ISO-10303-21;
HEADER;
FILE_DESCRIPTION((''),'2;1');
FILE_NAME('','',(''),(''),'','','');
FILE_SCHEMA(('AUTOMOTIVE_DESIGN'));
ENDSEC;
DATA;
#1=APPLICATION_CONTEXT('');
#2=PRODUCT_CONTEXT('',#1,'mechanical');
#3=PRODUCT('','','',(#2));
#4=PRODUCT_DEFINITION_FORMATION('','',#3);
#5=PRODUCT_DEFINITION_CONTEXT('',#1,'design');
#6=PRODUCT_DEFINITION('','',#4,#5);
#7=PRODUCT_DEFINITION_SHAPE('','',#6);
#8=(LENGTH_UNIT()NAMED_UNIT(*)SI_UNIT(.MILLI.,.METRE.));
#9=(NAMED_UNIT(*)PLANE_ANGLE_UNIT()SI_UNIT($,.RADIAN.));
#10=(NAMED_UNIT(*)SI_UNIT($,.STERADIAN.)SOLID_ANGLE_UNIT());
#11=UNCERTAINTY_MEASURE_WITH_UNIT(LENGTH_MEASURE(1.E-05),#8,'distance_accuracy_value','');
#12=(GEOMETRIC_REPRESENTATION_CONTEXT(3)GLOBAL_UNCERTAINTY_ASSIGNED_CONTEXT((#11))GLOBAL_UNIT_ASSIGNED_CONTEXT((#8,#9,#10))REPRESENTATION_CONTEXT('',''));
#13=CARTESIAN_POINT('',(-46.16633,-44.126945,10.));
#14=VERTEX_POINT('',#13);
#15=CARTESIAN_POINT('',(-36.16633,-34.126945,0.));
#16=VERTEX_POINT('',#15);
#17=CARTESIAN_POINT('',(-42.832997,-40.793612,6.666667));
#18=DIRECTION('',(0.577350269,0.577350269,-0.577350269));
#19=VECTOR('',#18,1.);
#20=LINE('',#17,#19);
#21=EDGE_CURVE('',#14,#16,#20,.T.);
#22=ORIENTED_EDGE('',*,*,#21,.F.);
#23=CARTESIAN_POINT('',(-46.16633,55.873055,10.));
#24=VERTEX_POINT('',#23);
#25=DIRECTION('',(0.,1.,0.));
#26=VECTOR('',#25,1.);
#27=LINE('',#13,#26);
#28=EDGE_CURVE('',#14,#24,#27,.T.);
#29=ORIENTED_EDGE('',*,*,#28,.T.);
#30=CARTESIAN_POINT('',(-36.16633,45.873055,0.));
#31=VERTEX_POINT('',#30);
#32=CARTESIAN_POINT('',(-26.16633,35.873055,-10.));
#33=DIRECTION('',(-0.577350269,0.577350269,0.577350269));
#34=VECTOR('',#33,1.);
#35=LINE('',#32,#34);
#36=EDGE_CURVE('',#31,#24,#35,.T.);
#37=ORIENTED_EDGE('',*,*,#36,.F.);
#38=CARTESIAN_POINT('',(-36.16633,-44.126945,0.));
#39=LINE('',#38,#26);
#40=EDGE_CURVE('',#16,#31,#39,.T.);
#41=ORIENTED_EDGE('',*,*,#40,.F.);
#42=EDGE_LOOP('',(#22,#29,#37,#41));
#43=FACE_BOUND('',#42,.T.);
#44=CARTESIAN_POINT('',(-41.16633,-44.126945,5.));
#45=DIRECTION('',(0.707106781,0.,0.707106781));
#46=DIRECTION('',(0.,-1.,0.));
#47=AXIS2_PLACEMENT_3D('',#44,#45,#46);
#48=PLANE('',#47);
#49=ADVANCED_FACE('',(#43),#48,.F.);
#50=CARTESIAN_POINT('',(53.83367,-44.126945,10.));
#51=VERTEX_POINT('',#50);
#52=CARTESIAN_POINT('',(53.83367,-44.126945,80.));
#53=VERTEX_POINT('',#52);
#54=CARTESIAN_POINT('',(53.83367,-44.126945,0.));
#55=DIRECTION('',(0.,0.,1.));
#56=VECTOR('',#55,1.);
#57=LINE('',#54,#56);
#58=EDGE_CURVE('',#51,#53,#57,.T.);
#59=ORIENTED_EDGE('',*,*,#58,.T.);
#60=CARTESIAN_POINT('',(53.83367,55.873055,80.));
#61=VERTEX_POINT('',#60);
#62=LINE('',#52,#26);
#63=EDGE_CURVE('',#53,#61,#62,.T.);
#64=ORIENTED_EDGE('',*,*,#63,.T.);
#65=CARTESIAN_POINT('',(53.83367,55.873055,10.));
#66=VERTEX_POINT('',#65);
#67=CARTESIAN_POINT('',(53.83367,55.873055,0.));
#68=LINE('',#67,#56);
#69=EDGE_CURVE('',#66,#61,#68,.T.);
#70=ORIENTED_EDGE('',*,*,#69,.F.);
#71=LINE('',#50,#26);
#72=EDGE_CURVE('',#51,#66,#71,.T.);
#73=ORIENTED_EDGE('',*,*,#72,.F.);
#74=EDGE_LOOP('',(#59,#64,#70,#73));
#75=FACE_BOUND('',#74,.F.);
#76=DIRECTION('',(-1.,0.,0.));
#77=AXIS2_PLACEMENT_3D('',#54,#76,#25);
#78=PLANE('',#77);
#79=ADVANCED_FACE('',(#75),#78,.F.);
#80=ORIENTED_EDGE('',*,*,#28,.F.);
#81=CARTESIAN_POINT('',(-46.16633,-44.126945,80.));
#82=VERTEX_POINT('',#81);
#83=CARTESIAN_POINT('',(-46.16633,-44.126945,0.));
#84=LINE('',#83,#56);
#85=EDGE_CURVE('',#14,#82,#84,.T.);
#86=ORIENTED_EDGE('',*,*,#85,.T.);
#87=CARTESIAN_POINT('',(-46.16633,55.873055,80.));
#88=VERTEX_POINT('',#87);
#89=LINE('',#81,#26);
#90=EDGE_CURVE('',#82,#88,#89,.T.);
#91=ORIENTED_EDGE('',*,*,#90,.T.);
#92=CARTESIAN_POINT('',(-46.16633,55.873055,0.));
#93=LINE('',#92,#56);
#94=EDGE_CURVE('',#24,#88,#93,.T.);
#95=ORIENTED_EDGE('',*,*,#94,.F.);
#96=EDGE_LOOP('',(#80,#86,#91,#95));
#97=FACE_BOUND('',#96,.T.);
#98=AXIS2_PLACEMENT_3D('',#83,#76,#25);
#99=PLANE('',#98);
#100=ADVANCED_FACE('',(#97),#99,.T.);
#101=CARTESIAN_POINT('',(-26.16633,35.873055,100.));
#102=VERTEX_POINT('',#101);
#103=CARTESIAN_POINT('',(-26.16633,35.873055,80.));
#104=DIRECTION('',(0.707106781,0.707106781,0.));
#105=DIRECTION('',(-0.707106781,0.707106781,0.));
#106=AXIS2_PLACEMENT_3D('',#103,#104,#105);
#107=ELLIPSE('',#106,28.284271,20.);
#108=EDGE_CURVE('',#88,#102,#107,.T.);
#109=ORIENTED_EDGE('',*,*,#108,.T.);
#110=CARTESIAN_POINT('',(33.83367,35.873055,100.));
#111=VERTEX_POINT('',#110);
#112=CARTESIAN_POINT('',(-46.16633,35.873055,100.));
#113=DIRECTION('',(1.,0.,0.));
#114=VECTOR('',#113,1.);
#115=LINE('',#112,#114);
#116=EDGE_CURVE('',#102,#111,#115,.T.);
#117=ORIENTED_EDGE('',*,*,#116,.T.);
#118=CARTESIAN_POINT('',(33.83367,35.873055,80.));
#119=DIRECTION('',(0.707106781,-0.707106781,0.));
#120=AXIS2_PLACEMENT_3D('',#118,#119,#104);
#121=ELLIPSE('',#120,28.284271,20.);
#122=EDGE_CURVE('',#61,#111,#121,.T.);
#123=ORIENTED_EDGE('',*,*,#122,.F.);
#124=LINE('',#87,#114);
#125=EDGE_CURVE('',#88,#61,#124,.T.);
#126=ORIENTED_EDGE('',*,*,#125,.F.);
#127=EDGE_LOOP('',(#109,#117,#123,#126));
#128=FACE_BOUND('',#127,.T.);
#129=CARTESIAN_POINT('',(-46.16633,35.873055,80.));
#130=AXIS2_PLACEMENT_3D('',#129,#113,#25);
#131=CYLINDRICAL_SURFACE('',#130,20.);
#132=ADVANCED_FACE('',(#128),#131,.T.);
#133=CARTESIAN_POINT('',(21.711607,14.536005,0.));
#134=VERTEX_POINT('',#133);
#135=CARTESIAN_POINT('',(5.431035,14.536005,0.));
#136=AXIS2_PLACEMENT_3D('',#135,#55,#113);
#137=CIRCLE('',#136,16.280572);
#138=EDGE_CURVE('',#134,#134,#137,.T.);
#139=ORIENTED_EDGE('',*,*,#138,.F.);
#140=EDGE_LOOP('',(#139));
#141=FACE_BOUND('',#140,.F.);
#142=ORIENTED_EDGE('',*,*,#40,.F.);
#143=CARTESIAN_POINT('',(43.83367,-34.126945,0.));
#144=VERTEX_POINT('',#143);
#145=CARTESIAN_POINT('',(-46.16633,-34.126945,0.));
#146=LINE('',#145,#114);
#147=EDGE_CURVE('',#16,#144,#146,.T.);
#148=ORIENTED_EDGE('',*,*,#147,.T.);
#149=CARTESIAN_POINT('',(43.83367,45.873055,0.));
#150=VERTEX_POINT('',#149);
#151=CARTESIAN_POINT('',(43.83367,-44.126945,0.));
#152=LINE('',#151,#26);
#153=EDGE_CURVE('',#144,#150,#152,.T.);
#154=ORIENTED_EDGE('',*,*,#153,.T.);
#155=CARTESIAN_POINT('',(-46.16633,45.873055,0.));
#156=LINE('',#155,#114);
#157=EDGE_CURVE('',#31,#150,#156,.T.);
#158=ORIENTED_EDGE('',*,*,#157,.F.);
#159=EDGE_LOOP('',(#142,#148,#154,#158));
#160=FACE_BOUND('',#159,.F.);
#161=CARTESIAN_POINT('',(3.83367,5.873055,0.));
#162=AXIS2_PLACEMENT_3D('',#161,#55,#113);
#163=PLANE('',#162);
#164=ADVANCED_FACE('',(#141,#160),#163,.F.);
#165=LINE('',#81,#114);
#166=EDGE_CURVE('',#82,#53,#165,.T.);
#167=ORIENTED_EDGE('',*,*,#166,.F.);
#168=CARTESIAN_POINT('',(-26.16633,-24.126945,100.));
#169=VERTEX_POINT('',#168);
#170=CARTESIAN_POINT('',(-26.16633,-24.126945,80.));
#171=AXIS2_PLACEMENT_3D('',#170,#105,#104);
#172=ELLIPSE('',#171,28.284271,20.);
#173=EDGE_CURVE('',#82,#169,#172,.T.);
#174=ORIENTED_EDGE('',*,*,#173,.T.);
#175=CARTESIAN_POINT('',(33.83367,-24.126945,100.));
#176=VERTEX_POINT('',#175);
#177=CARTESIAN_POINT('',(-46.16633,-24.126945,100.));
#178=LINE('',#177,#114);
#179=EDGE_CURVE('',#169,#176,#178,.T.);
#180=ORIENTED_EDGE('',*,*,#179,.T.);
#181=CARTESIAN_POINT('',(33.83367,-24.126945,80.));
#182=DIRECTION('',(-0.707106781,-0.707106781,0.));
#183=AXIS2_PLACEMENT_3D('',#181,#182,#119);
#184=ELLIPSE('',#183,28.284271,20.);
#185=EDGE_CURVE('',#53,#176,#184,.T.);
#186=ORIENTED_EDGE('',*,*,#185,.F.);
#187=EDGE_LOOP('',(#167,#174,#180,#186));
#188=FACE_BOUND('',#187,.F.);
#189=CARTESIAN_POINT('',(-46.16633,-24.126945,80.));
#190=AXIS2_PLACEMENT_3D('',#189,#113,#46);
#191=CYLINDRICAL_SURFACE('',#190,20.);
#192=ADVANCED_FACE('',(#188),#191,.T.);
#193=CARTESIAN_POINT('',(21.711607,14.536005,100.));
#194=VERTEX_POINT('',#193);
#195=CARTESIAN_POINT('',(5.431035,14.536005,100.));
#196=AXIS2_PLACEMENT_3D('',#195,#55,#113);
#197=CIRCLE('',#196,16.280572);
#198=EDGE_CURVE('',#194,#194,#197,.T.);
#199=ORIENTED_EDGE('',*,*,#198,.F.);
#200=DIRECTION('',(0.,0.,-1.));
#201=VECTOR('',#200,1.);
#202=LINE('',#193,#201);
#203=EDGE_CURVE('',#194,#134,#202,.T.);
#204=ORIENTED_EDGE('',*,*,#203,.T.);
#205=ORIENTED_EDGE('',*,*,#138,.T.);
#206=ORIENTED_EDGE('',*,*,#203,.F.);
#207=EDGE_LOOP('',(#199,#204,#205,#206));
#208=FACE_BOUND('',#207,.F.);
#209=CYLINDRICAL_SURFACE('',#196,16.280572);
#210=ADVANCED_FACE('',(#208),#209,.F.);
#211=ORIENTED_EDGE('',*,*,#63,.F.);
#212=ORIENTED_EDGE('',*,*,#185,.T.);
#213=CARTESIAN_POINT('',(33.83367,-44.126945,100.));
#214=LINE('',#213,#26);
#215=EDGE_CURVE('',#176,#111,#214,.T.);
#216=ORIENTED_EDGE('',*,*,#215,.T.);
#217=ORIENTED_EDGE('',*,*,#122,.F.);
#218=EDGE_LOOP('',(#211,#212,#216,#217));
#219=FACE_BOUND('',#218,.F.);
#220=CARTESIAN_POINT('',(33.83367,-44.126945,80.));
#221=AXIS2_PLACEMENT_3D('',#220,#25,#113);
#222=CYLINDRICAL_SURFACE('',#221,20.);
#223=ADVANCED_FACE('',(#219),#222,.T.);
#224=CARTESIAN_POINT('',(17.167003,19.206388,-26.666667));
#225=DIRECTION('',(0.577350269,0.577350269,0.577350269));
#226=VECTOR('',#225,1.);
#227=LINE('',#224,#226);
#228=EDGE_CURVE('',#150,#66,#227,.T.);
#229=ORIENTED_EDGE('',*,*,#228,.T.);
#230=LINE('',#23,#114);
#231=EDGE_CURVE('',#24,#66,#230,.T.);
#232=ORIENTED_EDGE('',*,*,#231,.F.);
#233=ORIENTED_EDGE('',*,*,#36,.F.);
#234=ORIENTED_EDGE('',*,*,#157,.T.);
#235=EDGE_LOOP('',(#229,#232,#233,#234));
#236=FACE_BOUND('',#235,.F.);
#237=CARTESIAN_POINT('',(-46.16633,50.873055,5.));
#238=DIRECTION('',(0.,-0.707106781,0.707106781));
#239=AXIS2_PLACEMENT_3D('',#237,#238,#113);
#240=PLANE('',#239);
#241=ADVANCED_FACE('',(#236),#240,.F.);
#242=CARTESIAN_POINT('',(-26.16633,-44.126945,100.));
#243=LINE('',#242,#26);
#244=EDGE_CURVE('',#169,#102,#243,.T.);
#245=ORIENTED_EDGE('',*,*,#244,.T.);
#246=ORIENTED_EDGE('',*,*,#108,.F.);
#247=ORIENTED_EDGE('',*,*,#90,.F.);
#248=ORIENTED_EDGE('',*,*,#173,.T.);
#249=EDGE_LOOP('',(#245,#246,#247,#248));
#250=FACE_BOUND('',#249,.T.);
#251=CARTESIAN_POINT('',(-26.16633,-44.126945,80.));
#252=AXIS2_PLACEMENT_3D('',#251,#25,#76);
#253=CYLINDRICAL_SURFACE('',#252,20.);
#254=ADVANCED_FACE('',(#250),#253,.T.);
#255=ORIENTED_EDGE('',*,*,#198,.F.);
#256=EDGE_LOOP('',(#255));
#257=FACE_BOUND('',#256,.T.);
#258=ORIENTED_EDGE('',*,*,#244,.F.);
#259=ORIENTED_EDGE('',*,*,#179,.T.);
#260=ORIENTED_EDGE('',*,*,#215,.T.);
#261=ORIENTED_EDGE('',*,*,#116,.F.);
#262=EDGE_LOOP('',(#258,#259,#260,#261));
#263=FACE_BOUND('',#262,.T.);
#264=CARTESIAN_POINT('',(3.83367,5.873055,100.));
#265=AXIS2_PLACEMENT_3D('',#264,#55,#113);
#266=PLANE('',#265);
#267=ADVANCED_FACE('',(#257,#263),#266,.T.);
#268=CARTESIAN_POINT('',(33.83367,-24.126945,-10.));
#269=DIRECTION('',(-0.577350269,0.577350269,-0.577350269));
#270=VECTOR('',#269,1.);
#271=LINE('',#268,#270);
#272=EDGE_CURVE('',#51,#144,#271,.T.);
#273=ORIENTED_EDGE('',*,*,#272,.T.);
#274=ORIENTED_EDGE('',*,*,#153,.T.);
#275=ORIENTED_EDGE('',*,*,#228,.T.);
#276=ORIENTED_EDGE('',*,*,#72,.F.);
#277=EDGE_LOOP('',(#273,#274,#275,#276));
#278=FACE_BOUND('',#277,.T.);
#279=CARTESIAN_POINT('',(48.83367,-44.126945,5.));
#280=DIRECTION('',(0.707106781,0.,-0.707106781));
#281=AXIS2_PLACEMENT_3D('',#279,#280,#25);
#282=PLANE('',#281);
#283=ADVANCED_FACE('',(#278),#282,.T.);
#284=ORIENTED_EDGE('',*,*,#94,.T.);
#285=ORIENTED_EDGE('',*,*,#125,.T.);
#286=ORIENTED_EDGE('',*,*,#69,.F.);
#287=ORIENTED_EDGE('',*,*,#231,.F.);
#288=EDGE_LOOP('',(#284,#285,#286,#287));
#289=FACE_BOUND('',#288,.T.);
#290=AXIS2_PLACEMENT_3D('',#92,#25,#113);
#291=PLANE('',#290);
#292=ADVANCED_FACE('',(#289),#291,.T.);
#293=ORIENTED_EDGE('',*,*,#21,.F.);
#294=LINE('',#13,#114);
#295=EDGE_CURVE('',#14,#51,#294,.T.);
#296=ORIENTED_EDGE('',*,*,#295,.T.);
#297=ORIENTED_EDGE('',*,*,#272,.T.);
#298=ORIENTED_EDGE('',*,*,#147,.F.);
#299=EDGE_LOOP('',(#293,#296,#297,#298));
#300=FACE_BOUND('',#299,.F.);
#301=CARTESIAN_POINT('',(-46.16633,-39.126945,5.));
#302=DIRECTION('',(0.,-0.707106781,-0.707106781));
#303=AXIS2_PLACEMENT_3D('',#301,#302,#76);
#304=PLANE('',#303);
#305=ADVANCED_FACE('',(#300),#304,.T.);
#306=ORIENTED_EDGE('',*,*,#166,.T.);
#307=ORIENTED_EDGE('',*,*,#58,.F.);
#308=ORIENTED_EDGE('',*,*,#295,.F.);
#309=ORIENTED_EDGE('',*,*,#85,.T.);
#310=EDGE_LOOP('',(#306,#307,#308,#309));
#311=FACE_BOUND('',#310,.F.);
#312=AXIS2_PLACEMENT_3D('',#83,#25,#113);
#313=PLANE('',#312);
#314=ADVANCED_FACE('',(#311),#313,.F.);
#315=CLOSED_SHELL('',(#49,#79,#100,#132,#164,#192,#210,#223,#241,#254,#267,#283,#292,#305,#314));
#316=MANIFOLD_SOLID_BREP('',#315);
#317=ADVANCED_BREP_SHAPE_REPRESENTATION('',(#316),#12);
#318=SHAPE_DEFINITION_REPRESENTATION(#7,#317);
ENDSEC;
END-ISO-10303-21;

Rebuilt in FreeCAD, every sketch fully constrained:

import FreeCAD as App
import Part
import Sketcher
from FreeCAD import Vector


def edges_at(feature, points):
    """Names of the edges that pass closest to the given points."""
    edges = feature.Shape.Edges
    near = lambda p: min(range(len(edges)), key=lambda i: edges[i].distToShape(Part.Vertex(*p))[0])
    return sorted({f"Edge{near(p) + 1}" for p in points})


def add_polygon(sketch, points):
    """Adds a closed chain of lines whose ends are joined by coincident constraints."""
    first, n = sketch.GeometryCount, len(points)
    for a, b in zip(points, points[1:] + points[:1]):
        sketch.addGeometry(Part.LineSegment(App.Vector(*a, 0), App.Vector(*b, 0)), False)
    for i in range(n):
        sketch.addConstraint(Sketcher.Constraint("Coincident", first + i, 2, first + (i + 1) % n, 1))

doc = App.newDocument("Part")
body = doc.addObject("PartDesign::Body", "Body")

sketch1 = body.newObject("Sketcher::SketchObject", "Sketch")
sketch1.AttachmentSupport = (doc.getObject("XY_Plane"), [""])
sketch1.MapMode = "FlatFace"
add_polygon(sketch1, [(-46, 56), (-46, -44), (54, -44), (54, 56)])
sketch1.addConstraint([
    Sketcher.Constraint("Vertical", 0),
    Sketcher.Constraint("Horizontal", 1),
    Sketcher.Constraint("Vertical", 2),
    Sketcher.Constraint("Horizontal", 3),
    Sketcher.Constraint("Equal", 3, 0),
    Sketcher.Constraint("DistanceX", 1, 1, 1, 2, 100.0),
    Sketcher.Constraint("DistanceX", 0, 2, -1, 1, 46.16633),
    Sketcher.Constraint("DistanceY", 0, 2, -1, 1, 44.126945),
])
pad1 = body.newObject("PartDesign::Pad", "Pad")
pad1.Profile = sketch1
pad1.Length = 100
doc.recompute()

fillet = body.newObject("PartDesign::Fillet", "Fillet")
fillet.Base = (pad1, edges_at(pad1, [
    (-46.166, 5.873, 100),
    (3.834, -44.127, 100),
    (3.834, 55.873, 100),
    (53.834, 5.873, 100),
]))
fillet.Radius = 20
doc.recompute()

chamfer = body.newObject("PartDesign::Chamfer", "Chamfer")
chamfer.Base = (fillet, edges_at(fillet, [
    (3.834, -44.127, 0),
    (53.834, 5.873, 0),
    (3.834, 55.873, 0),
    (-46.166, 5.873, 0),
]))
chamfer.Size = 10

sketch2 = body.newObject("Sketcher::SketchObject", "Sketch001")
sketch2.AttachmentSupport = (doc.getObject("XY_Plane"), [""])
sketch2.MapMode = "FlatFace"
sketch2.AttachmentOffset = App.Placement(Vector(0, 0, 100), App.Rotation())
sketch2.addGeometry(Part.Circle(Vector(5, 15, 0), Vector(0, 0, 1), 16), False)
sketch2.addConstraint([
    Sketcher.Constraint("Diameter", 0, 32.561144),
    Sketcher.Constraint("DistanceX", -1, 1, 0, 3, 5.431035),
    Sketcher.Constraint("DistanceY", -1, 1, 0, 3, 14.536005),
])
pocket1 = body.newObject("PartDesign::Pocket", "Pocket")
pocket1.Profile = sketch2
pocket1.Length = 173.821

doc.recompute()
